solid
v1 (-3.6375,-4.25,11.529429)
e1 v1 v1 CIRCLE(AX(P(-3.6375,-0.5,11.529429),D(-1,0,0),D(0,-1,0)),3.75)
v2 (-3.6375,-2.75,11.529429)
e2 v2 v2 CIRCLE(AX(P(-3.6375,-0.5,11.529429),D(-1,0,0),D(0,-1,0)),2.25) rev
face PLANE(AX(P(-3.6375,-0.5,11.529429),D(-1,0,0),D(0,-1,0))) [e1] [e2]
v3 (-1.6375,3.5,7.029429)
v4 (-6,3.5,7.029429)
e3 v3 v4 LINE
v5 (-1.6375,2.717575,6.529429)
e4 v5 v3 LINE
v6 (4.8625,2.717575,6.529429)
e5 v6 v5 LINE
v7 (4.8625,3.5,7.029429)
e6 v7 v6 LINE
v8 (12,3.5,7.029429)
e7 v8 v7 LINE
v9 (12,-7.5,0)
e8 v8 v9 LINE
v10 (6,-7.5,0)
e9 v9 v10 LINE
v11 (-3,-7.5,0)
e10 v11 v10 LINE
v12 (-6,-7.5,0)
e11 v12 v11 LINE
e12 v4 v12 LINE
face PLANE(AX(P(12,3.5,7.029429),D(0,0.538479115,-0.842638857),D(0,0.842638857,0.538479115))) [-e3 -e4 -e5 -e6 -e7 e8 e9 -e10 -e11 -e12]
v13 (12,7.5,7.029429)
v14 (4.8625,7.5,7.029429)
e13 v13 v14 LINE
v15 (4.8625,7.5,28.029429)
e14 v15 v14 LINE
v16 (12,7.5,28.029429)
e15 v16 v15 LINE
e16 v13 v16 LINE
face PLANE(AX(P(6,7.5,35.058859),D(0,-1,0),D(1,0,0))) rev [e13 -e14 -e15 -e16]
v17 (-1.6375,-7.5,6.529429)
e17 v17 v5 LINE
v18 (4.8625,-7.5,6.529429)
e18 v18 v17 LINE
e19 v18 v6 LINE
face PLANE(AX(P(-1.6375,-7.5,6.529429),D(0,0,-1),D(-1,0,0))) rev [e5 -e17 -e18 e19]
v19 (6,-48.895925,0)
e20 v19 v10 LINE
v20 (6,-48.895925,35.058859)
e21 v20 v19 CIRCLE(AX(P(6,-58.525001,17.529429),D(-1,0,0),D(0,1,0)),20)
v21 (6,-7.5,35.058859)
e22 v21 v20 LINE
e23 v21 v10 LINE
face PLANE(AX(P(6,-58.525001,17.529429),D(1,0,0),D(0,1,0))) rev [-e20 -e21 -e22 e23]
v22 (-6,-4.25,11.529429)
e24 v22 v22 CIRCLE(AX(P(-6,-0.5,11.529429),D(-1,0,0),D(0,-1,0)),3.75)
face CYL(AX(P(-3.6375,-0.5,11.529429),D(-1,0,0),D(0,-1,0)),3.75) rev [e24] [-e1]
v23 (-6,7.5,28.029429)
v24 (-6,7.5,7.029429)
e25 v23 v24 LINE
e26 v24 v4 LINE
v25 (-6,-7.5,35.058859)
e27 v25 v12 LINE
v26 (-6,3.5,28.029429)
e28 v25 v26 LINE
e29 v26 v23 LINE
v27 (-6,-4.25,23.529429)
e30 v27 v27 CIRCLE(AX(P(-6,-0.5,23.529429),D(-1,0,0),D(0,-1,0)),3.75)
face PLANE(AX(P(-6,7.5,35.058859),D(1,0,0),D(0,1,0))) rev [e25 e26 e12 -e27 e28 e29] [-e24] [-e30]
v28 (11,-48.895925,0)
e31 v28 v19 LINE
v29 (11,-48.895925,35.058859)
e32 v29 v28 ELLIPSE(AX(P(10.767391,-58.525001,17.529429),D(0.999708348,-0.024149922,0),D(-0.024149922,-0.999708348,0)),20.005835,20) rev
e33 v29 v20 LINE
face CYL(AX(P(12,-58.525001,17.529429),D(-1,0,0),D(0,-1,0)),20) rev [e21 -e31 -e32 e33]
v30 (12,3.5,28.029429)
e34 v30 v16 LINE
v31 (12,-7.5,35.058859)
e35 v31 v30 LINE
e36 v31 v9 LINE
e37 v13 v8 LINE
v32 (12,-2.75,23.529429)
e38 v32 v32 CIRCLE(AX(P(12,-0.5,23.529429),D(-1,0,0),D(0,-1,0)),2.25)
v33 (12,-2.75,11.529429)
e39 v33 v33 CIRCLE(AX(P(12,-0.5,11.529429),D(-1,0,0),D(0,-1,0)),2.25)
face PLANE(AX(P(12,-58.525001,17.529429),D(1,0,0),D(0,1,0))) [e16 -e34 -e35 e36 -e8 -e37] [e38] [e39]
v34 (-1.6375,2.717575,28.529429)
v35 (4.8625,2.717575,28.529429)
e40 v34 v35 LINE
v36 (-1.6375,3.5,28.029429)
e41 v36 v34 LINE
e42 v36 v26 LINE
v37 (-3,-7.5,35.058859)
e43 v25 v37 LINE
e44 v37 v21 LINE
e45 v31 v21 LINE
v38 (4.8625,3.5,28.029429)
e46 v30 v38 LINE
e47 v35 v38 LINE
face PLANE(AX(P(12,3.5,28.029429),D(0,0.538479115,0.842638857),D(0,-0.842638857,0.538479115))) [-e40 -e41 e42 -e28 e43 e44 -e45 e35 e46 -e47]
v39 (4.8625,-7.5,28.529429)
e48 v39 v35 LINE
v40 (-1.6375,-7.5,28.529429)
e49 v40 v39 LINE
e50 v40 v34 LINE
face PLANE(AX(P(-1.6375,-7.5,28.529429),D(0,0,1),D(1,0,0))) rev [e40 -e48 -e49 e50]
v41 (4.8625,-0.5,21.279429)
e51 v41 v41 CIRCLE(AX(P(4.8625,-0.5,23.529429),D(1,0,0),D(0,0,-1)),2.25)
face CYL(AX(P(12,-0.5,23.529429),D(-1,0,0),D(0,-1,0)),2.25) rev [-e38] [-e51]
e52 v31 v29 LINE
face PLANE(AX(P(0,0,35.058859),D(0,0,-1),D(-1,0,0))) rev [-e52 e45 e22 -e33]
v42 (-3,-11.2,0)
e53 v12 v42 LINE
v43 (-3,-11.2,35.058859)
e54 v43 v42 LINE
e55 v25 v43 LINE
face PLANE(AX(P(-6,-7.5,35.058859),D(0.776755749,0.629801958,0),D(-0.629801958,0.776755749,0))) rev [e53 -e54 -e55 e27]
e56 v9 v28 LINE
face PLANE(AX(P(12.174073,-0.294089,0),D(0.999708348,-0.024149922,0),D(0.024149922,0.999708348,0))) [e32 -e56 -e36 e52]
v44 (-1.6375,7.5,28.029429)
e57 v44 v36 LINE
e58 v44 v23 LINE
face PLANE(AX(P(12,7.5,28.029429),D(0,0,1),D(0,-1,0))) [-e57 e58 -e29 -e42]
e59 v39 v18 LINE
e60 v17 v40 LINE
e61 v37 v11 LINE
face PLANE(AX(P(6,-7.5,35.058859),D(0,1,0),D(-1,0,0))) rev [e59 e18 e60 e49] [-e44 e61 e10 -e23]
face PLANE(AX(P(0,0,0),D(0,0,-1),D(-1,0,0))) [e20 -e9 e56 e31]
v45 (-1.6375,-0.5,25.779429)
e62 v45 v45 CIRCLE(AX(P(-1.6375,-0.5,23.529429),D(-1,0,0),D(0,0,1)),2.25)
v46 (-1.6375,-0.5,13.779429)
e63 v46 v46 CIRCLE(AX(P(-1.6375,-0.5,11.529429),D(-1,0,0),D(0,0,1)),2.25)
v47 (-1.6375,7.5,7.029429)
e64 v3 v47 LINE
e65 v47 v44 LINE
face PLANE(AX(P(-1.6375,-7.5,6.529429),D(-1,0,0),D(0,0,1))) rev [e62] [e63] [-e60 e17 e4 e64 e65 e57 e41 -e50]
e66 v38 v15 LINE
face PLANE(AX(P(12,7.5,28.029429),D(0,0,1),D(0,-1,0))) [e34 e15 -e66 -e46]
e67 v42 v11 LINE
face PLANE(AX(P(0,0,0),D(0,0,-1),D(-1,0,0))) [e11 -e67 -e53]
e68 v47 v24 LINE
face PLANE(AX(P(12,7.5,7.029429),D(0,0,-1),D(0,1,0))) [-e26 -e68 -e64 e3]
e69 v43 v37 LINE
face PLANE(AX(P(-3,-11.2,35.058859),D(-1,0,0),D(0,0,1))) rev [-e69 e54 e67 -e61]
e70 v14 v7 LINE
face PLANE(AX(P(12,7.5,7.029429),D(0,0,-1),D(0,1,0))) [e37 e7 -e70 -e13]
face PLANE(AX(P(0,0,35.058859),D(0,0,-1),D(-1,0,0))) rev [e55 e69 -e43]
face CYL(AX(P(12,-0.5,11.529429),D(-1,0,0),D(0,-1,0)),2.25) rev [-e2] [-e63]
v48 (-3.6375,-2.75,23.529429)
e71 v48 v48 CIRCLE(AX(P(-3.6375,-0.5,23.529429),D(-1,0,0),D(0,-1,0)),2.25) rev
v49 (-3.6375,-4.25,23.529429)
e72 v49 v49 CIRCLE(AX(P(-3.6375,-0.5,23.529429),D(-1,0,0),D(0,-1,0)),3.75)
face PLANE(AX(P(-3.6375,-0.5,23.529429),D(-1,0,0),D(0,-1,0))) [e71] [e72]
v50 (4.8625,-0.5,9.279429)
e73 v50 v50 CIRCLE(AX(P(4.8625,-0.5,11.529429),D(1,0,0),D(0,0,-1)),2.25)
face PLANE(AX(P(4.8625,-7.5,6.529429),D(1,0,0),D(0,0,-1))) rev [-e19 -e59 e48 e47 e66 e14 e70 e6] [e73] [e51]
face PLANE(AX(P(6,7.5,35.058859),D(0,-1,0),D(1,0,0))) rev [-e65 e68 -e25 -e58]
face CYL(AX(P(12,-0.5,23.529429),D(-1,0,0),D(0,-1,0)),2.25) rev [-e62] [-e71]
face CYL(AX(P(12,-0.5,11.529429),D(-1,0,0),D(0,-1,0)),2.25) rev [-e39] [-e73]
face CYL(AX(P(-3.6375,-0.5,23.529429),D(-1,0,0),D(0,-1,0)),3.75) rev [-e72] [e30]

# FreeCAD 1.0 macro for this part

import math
import FreeCAD as App
import Part
import Sketcher

V = App.Vector

doc = App.newDocument("Part")
body = doc.addObject("PartDesign::Body", "Body")

# Sketch on XY plane
sketch1 = body.newObject("Sketcher::SketchObject", "Sketch")
sketch1.AttachmentSupport = (doc.getObject("XY_Plane"), [""])
sketch1.MapMode = "FlatFace"
sketch1.addGeometry([
    Part.LineSegment(V(-6, 8, 0), V(-6, -8, 0)),
    Part.LineSegment(V(-6, -8, 0), V(6, -8, 0)),
    Part.LineSegment(V(6, -8, 0), V(6, 8, 0)),
    Part.LineSegment(V(6, 8, 0), V(-6, 8, 0)),
], False)
sketch1.addConstraint([
    Sketcher.Constraint("Coincident", 0, 2, 1, 1),
    Sketcher.Constraint("Coincident", 1, 2, 2, 1),
    Sketcher.Constraint("Coincident", 2, 2, 3, 1),
    Sketcher.Constraint("Coincident", 3, 2, 0, 1),
    Sketcher.Constraint("Vertical", 0),
    Sketcher.Constraint("Horizontal", 1),
    Sketcher.Constraint("Vertical", 2),
    Sketcher.Constraint("Horizontal", 3),
    Sketcher.Constraint("Symmetric", 0, 2, 2, 2, -1, 1),
    Sketcher.Constraint("DistanceX", 1, 1, 1, 2, 12.0),
    Sketcher.Constraint("DistanceY", 0, 2, 0, 1, 15.0),
])
pad1 = body.newObject("PartDesign::Pad", "Pad")
pad1.Profile = sketch1
pad1.Length = 35.058859

# Sketch on YZ plane
sketch2 = body.newObject("Sketcher::SketchObject", "Sketch001")
sketch2.AttachmentSupport = (doc.getObject("YZ_Plane"), [""])
sketch2.MapMode = "FlatFace"
sketch2.AttachmentOffset = App.Placement(V(0, 0, 6), App.Rotation())
sketch2.addGeometry([
    Part.LineSegment(V(8, 0, 0), V(8, 35, 0)),
    Part.LineSegment(V(8, 35, 0), V(-49, 35, 0)),
    Part.ArcOfCircle(Part.Circle(V(-59, 18, 0), V(0, 0, 1), 20), math.radians(-61), math.radians(61)),
    Part.LineSegment(V(-49, 0, 0), V(8, 0, 0)),
], False)
sketch2.addConstraint([
    Sketcher.Constraint("Coincident", 0, 2, 1, 1),
    Sketcher.Constraint("Coincident", 1, 2, 2, 2),
    Sketcher.Constraint("Coincident", 2, 1, 3, 1),
    Sketcher.Constraint("Coincident", 3, 2, 0, 1),
    Sketcher.Constraint("Vertical", 0),
    Sketcher.Constraint("Horizontal", 1),
    Sketcher.Constraint("Horizontal", 3),
    Sketcher.Constraint("PointOnObject", 2, 1, -1),
    Sketcher.Constraint("Vertical", 1, 2, 2, 1),
    Sketcher.Constraint("Radius", 2, 20.0),
    Sketcher.Constraint("DistanceX", -1, 1, 0, 2, 7.5),
    Sketcher.Constraint("DistanceX", 2, 3, -1, 1, 58.525001),
    Sketcher.Constraint("DistanceY", 0, 1, 0, 2, 35.058859),
])
pad2 = body.newObject("PartDesign::Pad", "Pad001")
pad2.Profile = sketch2
pad2.Length = 6

# Sketch on an angled plane
sketch3 = body.newObject("Sketcher::SketchObject", "Sketch002")
sketch3.Placement = App.Placement(V(12.174073, -0.294089, 0), App.Rotation(V(0, 0, -1), V(0.024149922, 0.999708348, 0), V(0.999708348, -0.024149922, 0), "ZXY"))
sketch3.addGeometry([
    Part.LineSegment(V(-43, 12, 0), V(-43, -55, 0)),
    Part.LineSegment(V(-43, -55, 0), V(8, -55, 0)),
    Part.LineSegment(V(8, -55, 0), V(8, 12, 0)),
    Part.LineSegment(V(8, 12, 0), V(-43, 12, 0)),
], False)
sketch3.addConstraint([
    Sketcher.Constraint("Coincident", 0, 2, 1, 1),
    Sketcher.Constraint("Coincident", 1, 2, 2, 1),
    Sketcher.Constraint("Coincident", 2, 2, 3, 1),
    Sketcher.Constraint("Coincident", 3, 2, 0, 1),
    Sketcher.Constraint("Vertical", 0),
    Sketcher.Constraint("Horizontal", 1),
    Sketcher.Constraint("Vertical", 2),
    Sketcher.Constraint("Horizontal", 3),
    Sketcher.Constraint("DistanceY", 0, 2, 0, 1, 66.937611),
    Sketcher.Constraint("DistanceX", 1, 1, 1, 2, 51.475313),
    Sketcher.Constraint("DistanceX", 0, 2, -1, 1, 43.34158),
    Sketcher.Constraint("DistanceY", 0, 2, -1, 1, 54.95199),
])
pocket1 = body.newObject("PartDesign::Pocket", "Pocket")
pocket1.Profile = sketch3
pocket1.Type = "ThroughAll"
pocket1.Reversed = True

# Sketch on YZ plane
sketch4 = body.newObject("Sketcher::SketchObject", "Sketch003")
sketch4.AttachmentSupport = (doc.getObject("YZ_Plane"), [""])
sketch4.MapMode = "FlatFace"
sketch4.addGeometry([
    Part.LineSegment(V(7.5, 0, 0), V(7.5, 7, 0)),  # 0
    Part.LineSegment(V(7.5, 7, 0), V(3.5, 7, 0)),  # 1
    Part.LineSegment(V(3.5, 7, 0), V(-7.5, 0, 0)),  # 2
    Part.LineSegment(V(-7.5, 0, 0), V(7.5, 0, 0)),  # 3
    Part.LineSegment(V(7.5, 28, 0), V(7.5, 35.1, 0)),  # 4
    Part.LineSegment(V(7.5, 35.1, 0), V(-7.5, 35.1, 0)),  # 5
    Part.LineSegment(V(-7.5, 35.1, 0), V(3.5, 28, 0)),  # 6
    Part.LineSegment(V(3.5, 28, 0), V(7.5, 28, 0)),  # 7
], False)
sketch4.addConstraint([
    Sketcher.Constraint("Coincident", 0, 2, 1, 1),
    Sketcher.Constraint("Coincident", 1, 2, 2, 1),
    Sketcher.Constraint("Coincident", 2, 2, 3, 1),
    Sketcher.Constraint("Coincident", 3, 2, 0, 1),
    Sketcher.Constraint("Coincident", 4, 2, 5, 1),
    Sketcher.Constraint("Coincident", 5, 2, 6, 1),
    Sketcher.Constraint("Coincident", 6, 2, 7, 1),
    Sketcher.Constraint("Coincident", 7, 2, 4, 1),
    Sketcher.Constraint("Vertical", 0),
    Sketcher.Constraint("Horizontal", 1),
    Sketcher.Constraint("Horizontal", 3),
    Sketcher.Constraint("Vertical", 4),
    Sketcher.Constraint("Horizontal", 5),
    Sketcher.Constraint("Horizontal", 7),
    Sketcher.Constraint("Symmetric", 2, 2, 3, 2, -1, 1),
    Sketcher.Constraint("Vertical", 3, 2, 4, 2),
    Sketcher.Constraint("Vertical", 2, 2, 5, 2),
    Sketcher.Constraint("Vertical", 1, 2, 6, 2),
    Sketcher.Constraint("Equal", 0, 4),
    Sketcher.Constraint("DistanceX", 1, 2, 1, 1, 4.0),
    Sketcher.Constraint("DistanceX", 3, 1, 3, 2, 15.0),
    Sketcher.Constraint("DistanceY", 1, 2, 6, 2, 21.0),
    Sketcher.Constraint("DistanceY", 0, 1, 0, 2, 7.029429),
])
pocket2 = body.newObject("PartDesign::Pocket", "Pocket001")
pocket2.Profile = sketch4
pocket2.Type = "ThroughAll"
pocket2.Midplane = True

# Sketch on XZ plane
sketch5 = body.newObject("Sketcher::SketchObject", "Sketch004")
sketch5.AttachmentSupport = (doc.getObject("XZ_Plane"), [""])
sketch5.MapMode = "FlatFace"
sketch5.AttachmentOffset = App.Placement(V(0, 0, -7.5), App.Rotation())
sketch5.addGeometry([
    Part.LineSegment(V(-2, 7, 0), V(-2, 29, 0)),
    Part.LineSegment(V(-2, 29, 0), V(5, 29, 0)),
    Part.LineSegment(V(5, 29, 0), V(5, 7, 0)),
    Part.LineSegment(V(5, 7, 0), V(-2, 7, 0)),
], False)
sketch5.addConstraint([
    Sketcher.Constraint("Coincident", 0, 2, 1, 1),
    Sketcher.Constraint("Coincident", 1, 2, 2, 1),
    Sketcher.Constraint("Coincident", 2, 2, 3, 1),
    Sketcher.Constraint("Coincident", 3, 2, 0, 1),
    Sketcher.Constraint("Vertical", 0),
    Sketcher.Constraint("Horizontal", 1),
    Sketcher.Constraint("Vertical", 2),
    Sketcher.Constraint("Horizontal", 3),
    Sketcher.Constraint("DistanceY", 0, 1, 0, 2, 22.0),
    Sketcher.Constraint("DistanceX", 1, 1, 1, 2, 6.5),
    Sketcher.Constraint("DistanceX", 0, 2, -1, 1, 1.6375),
    Sketcher.Constraint("DistanceY", -1, 1, 0, 2, 28.529429),
])
pocket3 = body.newObject("PartDesign::Pocket", "Pocket002")
pocket3.Profile = sketch5
pocket3.Length = 15
pocket3.Reversed = True

# Sketch on YZ plane
sketch6 = body.newObject("Sketcher::SketchObject", "Sketch005")
sketch6.AttachmentSupport = (doc.getObject("YZ_Plane"), [""])
sketch6.MapMode = "FlatFace"
sketch6.AttachmentOffset = App.Placement(V(0, 0, -6), App.Rotation())
sketch6.addGeometry([
    Part.Circle(V(-0.5, 11.5, 0), V(0, 0, 1), 2.2),
    Part.Circle(V(-0.5, 23.5, 0), V(0, 0, 1), 2.2),
], False)
sketch6.addConstraint([
    Sketcher.Constraint("Equal", 0, 1),
    Sketcher.Constraint("Vertical", 0, 3, 1, 3),
    Sketcher.Constraint("Diameter", 0, 4.5),
    Sketcher.Constraint("DistanceY", 0, 3, 1, 3, 12.0),
    Sketcher.Constraint("DistanceX", 0, 3, -1, 1, 0.5),
    Sketcher.Constraint("DistanceY", -1, 1, 0, 3, 11.529429),
])
pocket4 = body.newObject("PartDesign::Pocket", "Pocket003")
pocket4.Profile = sketch6
pocket4.Type = "ThroughAll"
pocket4.Reversed = True

# Sketch on YZ plane
sketch7 = body.newObject("Sketcher::SketchObject", "Sketch006")
sketch7.AttachmentSupport = (doc.getObject("YZ_Plane"), [""])
sketch7.MapMode = "FlatFace"
sketch7.AttachmentOffset = App.Placement(V(0, 0, -6), App.Rotation())
sketch7.addGeometry([
    Part.Circle(V(-0.5, 11.5, 0), V(0, 0, 1), 3.8),
    Part.Circle(V(-0.5, 23.5, 0), V(0, 0, 1), 3.8),
], False)
sketch7.addConstraint([
    Sketcher.Constraint("Equal", 0, 1),
    Sketcher.Constraint("Vertical", 0, 3, 1, 3),
    Sketcher.Constraint("Diameter", 0, 7.5),
    Sketcher.Constraint("DistanceY", 0, 3, 1, 3, 12.0),
    Sketcher.Constraint("DistanceX", 0, 3, -1, 1, 0.5),
    Sketcher.Constraint("DistanceY", -1, 1, 0, 3, 11.529429),
])
pocket5 = body.newObject("PartDesign::Pocket", "Pocket004")
pocket5.Profile = sketch7
pocket5.Length = 2.3625
pocket5.Reversed = True

# Sketch on XY plane
sketch8 = body.newObject("Sketcher::SketchObject", "Sketch007")
sketch8.AttachmentSupport = (doc.getObject("XY_Plane"), [""])
sketch8.MapMode = "FlatFace"
sketch8.addGeometry([
    Part.LineSegment(V(-6, -7.5, 0), V(-3, -11.2, 0)),
    Part.LineSegment(V(-3, -11.2, 0), V(-3, -7.5, 0)),
    Part.LineSegment(V(-3, -7.5, 0), V(-6, -7.5, 0)),
], False)
sketch8.addConstraint([
    Sketcher.Constraint("Coincident", 0, 2, 1, 1),
    Sketcher.Constraint("Coincident", 1, 2, 2, 1),
    Sketcher.Constraint("Coincident", 2, 2, 0, 1),
    Sketcher.Constraint("Vertical", 1),
    Sketcher.Constraint("Horizontal", 2),
    Sketcher.Constraint("DistanceX", 2, 2, 2, 1, 3.0),
    Sketcher.Constraint("DistanceY", 1, 1, 1, 2, 3.7),
    Sketcher.Constraint("DistanceX", 0, 2, -1, 1, 3.0),
    Sketcher.Constraint("DistanceY", 0, 2, -1, 1, 11.2),
])
pad3 = body.newObject("PartDesign::Pad", "Pad002")
pad3.Profile = sketch8
pad3.Length = 35.058859

doc.recompute()
